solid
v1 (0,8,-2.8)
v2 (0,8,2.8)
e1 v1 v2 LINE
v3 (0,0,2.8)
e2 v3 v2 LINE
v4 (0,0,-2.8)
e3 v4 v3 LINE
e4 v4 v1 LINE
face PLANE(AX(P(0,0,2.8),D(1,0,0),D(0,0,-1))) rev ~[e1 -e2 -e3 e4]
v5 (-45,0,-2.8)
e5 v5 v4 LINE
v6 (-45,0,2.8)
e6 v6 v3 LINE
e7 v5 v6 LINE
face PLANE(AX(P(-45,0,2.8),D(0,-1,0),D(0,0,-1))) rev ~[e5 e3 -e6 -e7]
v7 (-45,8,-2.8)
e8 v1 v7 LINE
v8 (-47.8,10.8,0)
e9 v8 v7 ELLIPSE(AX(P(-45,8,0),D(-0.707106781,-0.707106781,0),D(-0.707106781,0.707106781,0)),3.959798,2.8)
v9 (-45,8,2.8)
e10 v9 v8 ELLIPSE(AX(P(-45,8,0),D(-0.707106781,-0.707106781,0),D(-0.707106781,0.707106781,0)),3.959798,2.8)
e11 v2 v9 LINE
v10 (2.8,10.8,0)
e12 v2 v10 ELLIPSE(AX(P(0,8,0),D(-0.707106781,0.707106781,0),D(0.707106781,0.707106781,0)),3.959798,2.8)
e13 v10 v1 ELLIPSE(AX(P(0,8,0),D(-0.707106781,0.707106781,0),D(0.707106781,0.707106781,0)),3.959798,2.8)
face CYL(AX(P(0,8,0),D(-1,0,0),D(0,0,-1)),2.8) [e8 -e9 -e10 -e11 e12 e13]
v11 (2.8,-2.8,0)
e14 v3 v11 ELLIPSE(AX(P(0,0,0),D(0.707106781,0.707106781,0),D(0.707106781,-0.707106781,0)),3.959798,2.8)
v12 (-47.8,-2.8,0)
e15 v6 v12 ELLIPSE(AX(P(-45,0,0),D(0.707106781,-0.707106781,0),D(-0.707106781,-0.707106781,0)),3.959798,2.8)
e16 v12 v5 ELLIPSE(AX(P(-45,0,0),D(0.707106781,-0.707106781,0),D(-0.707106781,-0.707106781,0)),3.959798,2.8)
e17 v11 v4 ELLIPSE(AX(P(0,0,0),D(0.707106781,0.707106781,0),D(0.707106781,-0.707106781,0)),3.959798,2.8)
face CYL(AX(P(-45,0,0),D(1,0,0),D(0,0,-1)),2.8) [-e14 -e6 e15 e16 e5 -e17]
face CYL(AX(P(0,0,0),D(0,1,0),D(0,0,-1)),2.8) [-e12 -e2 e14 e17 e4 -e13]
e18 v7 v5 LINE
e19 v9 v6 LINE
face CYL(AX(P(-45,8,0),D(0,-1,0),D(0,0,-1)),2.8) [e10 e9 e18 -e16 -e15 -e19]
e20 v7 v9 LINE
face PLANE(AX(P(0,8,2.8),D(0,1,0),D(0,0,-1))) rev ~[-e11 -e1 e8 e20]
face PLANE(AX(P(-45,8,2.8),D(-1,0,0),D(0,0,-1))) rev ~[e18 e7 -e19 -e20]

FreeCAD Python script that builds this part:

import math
import FreeCAD as App
import Part
import Sketcher


def add_polygon(sketch, points):
    """Adds a closed chain of lines whose ends are joined by coincident constraints."""
    first, n = sketch.GeometryCount, len(points)
    for a, b in zip(points, points[1:] + points[:1]):
        sketch.addGeometry(Part.LineSegment(App.Vector(*a, 0), App.Vector(*b, 0)), False)
    for i in range(n):
        sketch.addConstraint(Sketcher.Constraint("Coincident", first + i, 2, first + (i + 1) % n, 1))

doc = App.newDocument("Part")
body = doc.addObject("PartDesign::Body", "Body")

# Sketch on XZ plane
sketch1 = body.newObject("Sketcher::SketchObject", "Sketch")
sketch1.AttachmentSupport = (doc.getObject("XZ_Plane"), [""])
sketch1.MapMode = "FlatFace"
sketch1.addGeometry([
    Part.LineSegment(App.Vector(0, 2.8, 0), App.Vector(0, -2.8, 0)),
    Part.ArcOfCircle(Part.Circle(App.Vector(0, 0, 0), App.Vector(0, 0, 1), 2.8), math.radians(-90), math.radians(90)),
], False)
sketch1.addConstraint([
    Sketcher.Constraint("Coincident", 0, 1, 1, 2),
    Sketcher.Constraint("Coincident", 1, 1, 0, 2),
    Sketcher.Constraint("Vertical", 0),
    Sketcher.Constraint("Coincident", 1, 3, -1, 1),
    Sketcher.Constraint("PointOnObject", 0, 1, -2),
    Sketcher.Constraint("Radius", 1, 2.8),
])

# Sketch on XY plane
sketch2 = body.newObject("Sketcher::SketchObject", "Sketch001")
sketch2.AttachmentSupport = (doc.getObject("XY_Plane"), [""])
sketch2.MapMode = "FlatFace"
add_polygon(sketch2, [(0, 0), (0, 8), (-45, 8), (-45, 0)])  # lines 0-3
sketch2.addConstraint([
    Sketcher.Constraint("Vertical", 0),
    Sketcher.Constraint("Horizontal", 1),
    Sketcher.Constraint("Vertical", 2),
    Sketcher.Constraint("Horizontal", 3),
    Sketcher.Constraint("Coincident", 3, 2, -1, 1),
    Sketcher.Constraint("DistanceX", 1, 2, 1, 1, 45.0),
    Sketcher.Constraint("DistanceY", 0, 1, 0, 2, 8.0),
])
doc.recompute()

additivepipe = body.newObject("PartDesign::AdditivePipe", "AdditivePipe")
additivepipe.Profile = sketch1
additivepipe.Spine = (sketch2, ["Edge1", "Edge2", "Edge3", "Edge4"])
additivepipe.Transition = "Right corner"

doc.recompute()
